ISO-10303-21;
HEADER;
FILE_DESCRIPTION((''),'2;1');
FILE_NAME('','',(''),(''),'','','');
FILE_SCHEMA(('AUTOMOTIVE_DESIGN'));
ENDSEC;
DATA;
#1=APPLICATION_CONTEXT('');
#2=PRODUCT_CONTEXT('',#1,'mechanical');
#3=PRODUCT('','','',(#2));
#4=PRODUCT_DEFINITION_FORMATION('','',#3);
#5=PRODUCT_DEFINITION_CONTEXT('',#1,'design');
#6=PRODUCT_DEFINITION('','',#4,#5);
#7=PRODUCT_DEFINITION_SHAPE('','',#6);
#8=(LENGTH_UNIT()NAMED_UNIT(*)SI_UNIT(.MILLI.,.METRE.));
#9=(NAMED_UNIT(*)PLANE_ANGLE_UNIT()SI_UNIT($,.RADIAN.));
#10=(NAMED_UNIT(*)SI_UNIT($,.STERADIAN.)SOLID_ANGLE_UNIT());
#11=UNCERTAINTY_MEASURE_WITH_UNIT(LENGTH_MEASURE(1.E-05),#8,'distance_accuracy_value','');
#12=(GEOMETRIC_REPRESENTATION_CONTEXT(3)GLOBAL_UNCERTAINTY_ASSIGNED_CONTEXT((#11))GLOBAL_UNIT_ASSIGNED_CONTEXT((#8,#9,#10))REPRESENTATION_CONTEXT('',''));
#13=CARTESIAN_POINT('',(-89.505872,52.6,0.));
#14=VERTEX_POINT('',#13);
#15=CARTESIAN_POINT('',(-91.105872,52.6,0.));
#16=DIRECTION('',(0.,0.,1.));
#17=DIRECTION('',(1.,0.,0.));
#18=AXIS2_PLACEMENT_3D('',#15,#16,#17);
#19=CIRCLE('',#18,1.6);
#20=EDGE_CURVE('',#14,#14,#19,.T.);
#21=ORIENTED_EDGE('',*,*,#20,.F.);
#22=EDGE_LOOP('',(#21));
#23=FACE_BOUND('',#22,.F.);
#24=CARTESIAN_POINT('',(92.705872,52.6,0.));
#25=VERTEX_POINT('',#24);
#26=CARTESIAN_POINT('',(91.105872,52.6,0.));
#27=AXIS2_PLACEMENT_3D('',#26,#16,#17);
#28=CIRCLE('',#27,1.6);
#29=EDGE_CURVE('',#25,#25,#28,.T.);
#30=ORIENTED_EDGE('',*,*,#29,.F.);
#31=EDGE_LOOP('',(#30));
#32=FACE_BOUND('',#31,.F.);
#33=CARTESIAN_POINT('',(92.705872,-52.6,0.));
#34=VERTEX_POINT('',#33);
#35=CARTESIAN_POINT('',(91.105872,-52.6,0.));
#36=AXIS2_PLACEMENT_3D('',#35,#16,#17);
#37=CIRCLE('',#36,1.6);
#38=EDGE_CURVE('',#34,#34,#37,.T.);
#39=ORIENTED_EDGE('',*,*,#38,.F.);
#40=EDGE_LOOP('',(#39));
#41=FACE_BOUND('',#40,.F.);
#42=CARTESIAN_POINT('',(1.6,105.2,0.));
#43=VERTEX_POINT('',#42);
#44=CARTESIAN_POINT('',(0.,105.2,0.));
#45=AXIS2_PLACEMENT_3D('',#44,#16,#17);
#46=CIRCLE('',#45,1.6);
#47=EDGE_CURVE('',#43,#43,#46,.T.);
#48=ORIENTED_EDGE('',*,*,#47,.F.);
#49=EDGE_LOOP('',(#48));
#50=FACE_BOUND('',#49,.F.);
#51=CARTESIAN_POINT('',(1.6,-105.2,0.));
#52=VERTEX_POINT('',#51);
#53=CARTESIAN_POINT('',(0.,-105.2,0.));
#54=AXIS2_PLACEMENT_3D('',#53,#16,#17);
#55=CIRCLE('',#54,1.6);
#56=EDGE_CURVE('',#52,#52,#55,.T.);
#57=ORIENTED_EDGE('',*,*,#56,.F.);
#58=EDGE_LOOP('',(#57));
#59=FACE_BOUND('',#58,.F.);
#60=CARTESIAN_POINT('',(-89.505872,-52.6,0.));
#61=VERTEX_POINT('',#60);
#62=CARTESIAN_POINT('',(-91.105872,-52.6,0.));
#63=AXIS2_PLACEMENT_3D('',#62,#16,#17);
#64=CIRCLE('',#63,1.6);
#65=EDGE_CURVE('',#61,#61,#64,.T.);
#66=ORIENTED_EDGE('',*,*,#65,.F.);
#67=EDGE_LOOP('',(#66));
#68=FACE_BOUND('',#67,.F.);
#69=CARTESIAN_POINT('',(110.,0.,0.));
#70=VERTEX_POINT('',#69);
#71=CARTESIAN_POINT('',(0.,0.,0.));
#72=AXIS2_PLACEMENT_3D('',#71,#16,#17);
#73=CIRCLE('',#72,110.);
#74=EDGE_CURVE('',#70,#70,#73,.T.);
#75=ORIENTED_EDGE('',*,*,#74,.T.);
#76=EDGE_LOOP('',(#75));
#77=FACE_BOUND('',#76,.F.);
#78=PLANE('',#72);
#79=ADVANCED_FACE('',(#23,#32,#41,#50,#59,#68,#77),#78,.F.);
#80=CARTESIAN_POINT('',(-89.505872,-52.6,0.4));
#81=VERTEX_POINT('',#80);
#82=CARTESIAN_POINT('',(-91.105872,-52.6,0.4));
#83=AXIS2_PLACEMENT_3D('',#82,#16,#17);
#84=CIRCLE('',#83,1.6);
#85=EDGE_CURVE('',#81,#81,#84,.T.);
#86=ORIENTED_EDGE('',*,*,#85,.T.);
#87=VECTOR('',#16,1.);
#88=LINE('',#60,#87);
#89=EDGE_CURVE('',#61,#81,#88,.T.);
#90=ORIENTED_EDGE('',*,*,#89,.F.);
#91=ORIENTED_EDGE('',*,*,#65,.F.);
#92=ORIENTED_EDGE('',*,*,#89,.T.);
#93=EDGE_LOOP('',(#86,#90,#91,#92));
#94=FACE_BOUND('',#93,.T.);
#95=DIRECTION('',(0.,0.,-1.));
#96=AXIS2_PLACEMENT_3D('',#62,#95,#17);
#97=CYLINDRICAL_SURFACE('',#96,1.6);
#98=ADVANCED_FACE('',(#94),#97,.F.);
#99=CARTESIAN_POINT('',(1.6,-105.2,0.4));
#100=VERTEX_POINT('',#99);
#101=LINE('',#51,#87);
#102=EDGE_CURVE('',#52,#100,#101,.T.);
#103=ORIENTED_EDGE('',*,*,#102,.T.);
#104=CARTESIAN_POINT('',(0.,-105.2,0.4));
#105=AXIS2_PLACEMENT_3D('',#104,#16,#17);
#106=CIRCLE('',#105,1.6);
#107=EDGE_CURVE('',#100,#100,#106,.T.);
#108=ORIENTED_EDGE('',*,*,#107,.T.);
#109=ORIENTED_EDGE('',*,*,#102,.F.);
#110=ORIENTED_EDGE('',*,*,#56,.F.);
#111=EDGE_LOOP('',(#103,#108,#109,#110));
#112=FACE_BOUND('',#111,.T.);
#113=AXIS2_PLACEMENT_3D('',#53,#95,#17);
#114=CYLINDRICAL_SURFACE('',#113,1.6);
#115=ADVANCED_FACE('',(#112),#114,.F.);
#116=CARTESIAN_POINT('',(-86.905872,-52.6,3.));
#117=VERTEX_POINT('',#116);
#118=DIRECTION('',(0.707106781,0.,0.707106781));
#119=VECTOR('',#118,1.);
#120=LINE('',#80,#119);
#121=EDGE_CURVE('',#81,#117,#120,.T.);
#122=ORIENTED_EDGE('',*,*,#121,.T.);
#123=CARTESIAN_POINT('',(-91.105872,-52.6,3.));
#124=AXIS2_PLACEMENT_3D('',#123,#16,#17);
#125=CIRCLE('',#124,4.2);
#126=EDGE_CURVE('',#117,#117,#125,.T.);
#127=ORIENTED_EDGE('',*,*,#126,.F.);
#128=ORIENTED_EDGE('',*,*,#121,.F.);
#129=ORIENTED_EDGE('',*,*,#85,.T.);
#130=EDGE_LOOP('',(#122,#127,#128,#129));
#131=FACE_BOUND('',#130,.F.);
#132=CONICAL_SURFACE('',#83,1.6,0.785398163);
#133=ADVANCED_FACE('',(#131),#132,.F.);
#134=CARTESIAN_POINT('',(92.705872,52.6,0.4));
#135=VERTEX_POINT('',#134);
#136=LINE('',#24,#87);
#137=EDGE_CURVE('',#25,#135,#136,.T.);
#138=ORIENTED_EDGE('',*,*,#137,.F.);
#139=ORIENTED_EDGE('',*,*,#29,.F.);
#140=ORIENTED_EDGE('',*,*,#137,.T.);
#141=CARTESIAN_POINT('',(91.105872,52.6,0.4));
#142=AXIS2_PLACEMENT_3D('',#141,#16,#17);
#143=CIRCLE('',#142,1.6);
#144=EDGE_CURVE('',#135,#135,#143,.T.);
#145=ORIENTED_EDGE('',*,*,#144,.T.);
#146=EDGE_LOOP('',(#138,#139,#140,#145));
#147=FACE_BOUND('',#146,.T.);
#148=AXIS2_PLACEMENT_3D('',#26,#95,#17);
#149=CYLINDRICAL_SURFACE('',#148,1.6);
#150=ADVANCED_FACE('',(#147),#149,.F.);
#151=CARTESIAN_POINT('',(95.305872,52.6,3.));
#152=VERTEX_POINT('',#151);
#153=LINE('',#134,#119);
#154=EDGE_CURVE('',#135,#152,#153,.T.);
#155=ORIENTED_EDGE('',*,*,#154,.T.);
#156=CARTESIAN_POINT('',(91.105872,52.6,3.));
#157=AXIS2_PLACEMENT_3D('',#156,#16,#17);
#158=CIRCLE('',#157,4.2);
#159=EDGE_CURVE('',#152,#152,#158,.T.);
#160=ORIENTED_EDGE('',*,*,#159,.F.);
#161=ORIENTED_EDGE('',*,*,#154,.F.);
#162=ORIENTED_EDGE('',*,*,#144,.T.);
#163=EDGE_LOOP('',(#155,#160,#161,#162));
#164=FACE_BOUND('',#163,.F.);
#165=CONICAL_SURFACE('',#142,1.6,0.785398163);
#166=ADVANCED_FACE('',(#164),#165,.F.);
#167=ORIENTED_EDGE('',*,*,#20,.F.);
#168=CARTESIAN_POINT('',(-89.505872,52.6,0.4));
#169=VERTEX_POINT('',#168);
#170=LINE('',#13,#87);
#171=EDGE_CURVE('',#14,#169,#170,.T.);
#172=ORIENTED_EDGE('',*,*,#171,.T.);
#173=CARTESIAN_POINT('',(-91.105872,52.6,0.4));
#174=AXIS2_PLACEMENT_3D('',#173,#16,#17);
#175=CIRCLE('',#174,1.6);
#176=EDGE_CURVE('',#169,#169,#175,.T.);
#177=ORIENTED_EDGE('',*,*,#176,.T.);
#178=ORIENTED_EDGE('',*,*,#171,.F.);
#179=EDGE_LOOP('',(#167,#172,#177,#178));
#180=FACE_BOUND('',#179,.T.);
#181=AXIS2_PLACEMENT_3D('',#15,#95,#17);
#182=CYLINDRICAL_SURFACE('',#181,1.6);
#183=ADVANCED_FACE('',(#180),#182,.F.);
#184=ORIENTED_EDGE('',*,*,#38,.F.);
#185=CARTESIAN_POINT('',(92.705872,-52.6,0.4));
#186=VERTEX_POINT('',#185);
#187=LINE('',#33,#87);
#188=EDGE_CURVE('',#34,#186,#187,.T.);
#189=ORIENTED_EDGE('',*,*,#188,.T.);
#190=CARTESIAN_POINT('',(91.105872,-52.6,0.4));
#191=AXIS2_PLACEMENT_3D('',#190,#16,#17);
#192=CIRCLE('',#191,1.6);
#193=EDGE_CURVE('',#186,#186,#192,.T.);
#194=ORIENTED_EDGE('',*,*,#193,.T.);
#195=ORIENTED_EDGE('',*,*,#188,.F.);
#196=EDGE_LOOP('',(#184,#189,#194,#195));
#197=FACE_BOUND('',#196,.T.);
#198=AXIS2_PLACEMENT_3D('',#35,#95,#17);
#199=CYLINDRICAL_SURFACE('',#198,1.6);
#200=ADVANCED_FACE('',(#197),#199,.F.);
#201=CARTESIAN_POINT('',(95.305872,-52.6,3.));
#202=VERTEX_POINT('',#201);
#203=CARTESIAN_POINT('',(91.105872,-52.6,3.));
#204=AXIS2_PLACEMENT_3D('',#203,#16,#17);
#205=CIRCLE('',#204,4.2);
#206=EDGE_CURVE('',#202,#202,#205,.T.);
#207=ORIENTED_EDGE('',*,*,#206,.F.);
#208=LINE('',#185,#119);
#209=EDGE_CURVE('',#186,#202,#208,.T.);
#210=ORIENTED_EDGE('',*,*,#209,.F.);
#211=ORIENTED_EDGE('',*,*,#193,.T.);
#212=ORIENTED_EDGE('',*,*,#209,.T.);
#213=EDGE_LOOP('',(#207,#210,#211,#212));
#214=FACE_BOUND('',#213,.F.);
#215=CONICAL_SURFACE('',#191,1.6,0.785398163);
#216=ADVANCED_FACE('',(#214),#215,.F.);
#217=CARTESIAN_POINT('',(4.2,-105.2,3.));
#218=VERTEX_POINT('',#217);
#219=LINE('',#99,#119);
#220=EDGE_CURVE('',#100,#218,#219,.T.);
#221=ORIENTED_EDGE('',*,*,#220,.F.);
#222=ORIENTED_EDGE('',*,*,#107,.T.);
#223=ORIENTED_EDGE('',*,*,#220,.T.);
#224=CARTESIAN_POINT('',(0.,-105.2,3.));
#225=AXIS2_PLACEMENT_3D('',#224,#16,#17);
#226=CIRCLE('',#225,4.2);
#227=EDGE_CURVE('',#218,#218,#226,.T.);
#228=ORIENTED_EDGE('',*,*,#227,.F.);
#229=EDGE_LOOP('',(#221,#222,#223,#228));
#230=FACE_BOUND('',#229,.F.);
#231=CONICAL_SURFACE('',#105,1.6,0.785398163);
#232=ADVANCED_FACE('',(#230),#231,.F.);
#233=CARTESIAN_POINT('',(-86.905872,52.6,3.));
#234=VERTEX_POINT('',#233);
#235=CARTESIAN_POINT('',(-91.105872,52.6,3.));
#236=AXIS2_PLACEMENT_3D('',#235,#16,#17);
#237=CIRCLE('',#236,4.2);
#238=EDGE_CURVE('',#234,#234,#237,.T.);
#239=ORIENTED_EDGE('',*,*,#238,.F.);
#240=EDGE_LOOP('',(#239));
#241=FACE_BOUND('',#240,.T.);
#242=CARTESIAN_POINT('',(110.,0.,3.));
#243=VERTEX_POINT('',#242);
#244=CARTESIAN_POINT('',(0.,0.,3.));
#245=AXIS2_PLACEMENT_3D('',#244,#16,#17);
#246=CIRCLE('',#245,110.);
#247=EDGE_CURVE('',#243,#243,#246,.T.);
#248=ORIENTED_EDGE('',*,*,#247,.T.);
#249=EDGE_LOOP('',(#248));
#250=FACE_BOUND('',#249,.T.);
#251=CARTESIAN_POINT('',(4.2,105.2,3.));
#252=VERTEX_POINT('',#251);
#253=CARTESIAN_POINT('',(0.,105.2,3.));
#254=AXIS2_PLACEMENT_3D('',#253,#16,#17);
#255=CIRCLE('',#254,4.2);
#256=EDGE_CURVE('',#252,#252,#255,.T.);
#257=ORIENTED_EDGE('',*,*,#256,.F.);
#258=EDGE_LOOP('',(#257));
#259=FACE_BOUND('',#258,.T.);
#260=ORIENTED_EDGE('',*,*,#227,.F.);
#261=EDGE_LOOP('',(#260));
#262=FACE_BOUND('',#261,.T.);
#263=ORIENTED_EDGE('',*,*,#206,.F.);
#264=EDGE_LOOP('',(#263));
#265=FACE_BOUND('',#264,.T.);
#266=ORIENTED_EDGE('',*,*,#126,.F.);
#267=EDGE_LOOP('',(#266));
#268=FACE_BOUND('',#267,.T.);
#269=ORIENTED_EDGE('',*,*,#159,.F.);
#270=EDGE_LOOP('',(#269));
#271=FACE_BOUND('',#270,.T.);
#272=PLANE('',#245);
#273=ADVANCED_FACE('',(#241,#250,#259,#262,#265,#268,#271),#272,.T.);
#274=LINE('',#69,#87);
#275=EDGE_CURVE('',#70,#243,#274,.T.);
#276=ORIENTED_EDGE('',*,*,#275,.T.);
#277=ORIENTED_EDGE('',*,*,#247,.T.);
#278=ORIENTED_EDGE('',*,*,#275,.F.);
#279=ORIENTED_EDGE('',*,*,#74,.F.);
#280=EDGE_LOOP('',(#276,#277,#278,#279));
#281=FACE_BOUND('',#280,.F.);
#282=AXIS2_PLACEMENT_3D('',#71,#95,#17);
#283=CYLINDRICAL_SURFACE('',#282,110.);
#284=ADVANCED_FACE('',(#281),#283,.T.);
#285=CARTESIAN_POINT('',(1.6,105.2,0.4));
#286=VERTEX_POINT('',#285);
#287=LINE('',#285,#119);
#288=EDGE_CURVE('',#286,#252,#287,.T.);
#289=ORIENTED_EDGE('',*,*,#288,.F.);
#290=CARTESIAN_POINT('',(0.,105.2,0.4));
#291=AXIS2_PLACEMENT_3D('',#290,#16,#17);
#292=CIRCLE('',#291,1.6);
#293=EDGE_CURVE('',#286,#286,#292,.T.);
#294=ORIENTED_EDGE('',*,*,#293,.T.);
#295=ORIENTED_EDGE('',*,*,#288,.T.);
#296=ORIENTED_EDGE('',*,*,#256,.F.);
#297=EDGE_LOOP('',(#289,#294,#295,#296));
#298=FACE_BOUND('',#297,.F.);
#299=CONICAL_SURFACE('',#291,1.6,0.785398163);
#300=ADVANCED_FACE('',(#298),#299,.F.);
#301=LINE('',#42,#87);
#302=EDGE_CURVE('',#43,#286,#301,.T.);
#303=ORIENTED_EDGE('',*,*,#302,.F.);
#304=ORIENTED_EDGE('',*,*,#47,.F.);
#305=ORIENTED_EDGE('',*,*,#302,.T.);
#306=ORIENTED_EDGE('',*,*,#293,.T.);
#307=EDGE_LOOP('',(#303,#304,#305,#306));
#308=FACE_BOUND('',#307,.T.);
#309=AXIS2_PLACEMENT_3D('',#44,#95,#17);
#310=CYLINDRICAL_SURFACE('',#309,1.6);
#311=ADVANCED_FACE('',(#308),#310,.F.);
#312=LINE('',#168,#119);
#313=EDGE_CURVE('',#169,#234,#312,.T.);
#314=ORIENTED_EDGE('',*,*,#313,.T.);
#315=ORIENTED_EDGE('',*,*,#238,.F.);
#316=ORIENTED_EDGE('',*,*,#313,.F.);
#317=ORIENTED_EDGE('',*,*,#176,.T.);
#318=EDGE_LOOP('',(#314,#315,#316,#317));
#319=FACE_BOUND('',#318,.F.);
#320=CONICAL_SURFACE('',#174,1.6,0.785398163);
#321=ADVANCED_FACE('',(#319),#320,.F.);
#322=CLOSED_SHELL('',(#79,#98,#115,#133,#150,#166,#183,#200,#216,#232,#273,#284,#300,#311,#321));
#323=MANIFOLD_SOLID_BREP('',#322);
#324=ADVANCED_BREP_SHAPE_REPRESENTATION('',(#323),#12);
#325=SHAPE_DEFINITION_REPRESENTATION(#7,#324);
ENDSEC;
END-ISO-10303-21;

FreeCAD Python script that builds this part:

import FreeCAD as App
import Part
import Sketcher

V = App.Vector
Q = App.Units.Quantity


def edges_at(feature, points):
    """Names of the edges that pass closest to the given points."""
    edges = feature.Shape.Edges
    near = lambda p: min(range(len(edges)), key=lambda i: edges[i].distToShape(Part.Vertex(*p))[0])
    return sorted({f"Edge{near(p) + 1}" for p in points})

doc = App.newDocument("Part")
body = doc.addObject("PartDesign::Body", "Body")

sketch1 = doc.addObject("Sketcher::SketchObject", "Sketch")
body.addObject(sketch1)
sketch1.AttachmentSupport = (doc.XY_Plane, [""])
sketch1.MapMode = "FlatFace"
sketch1.addGeometry([
    Part.Circle(V(0, 0, 0), V(0, 0, 1), 110),
    Part.Circle(V(-91.1, -52.6, 0), V(0, 0, 1), 1.6),
    Part.Circle(V(0, -105.2, 0), V(0, 0, 1), 1.6),
    Part.Circle(V(91.1, -52.6, 0), V(0, 0, 1), 1.6),
    Part.Circle(V(-91.1, 52.6, 0), V(0, 0, 1), 1.6),
    Part.Circle(V(91.1, 52.6, 0), V(0, 0, 1), 1.6),
    Part.Circle(V(0, 105.2, 0), V(0, 0, 1), 1.6),
], False)
sketch1.addConstraint([
    Sketcher.Constraint("Coincident", 0, 3, -1, 1),
    Sketcher.Constraint("Equal", 1, 2),
    Sketcher.Constraint("Equal", 2, 3),
    Sketcher.Constraint("Equal", 3, 4),
    Sketcher.Constraint("Equal", 4, 5),
    Sketcher.Constraint("Equal", 5, 6),
    Sketcher.Constraint("Symmetric", 3, 3, 4, 3, -1, 1),
    Sketcher.Constraint("Symmetric", 1, 3, 5, 3, -1, 1),
    Sketcher.Constraint("Symmetric", 2, 3, 6, 3, -1, 1),
    Sketcher.Constraint("Symmetric", 1, 3, 3, 3, -2),
    Sketcher.Constraint("PointOnObject", 2, 3, -2),
    Sketcher.Constraint("Diameter", 0, Q("220 mm")),
    Sketcher.Constraint("Diameter", 1, Q("3.2 mm")),
    Sketcher.Constraint("DistanceY", 1, 3, -1, 1, Q("52.6 mm")),
    Sketcher.Constraint("DistanceY", 2, 3, -1, 1, Q("105.2 mm")),
    Sketcher.Constraint("DistanceX", 1, 3, -1, 1, Q("91.105872 mm")),
])
pad1 = doc.addObject("PartDesign::Pad", "Pad")
body.addObject(pad1)
pad1.Profile = sketch1
pad1.Length = 3
doc.recompute()

chamfer = doc.addObject("PartDesign::Chamfer", "Chamfer")
body.addObject(chamfer)
chamfer.Base = (pad1, edges_at(pad1, [
    (-92.706, 52.6, 3),
    (-1.6, 105.2, 3),
    (89.506, 52.6, 3),
    (89.506, -52.6, 3),
    (-1.6, -105.2, 3),
    (-92.706, -52.6, 3),
]))
chamfer.Size = 2.6

doc.recompute()
